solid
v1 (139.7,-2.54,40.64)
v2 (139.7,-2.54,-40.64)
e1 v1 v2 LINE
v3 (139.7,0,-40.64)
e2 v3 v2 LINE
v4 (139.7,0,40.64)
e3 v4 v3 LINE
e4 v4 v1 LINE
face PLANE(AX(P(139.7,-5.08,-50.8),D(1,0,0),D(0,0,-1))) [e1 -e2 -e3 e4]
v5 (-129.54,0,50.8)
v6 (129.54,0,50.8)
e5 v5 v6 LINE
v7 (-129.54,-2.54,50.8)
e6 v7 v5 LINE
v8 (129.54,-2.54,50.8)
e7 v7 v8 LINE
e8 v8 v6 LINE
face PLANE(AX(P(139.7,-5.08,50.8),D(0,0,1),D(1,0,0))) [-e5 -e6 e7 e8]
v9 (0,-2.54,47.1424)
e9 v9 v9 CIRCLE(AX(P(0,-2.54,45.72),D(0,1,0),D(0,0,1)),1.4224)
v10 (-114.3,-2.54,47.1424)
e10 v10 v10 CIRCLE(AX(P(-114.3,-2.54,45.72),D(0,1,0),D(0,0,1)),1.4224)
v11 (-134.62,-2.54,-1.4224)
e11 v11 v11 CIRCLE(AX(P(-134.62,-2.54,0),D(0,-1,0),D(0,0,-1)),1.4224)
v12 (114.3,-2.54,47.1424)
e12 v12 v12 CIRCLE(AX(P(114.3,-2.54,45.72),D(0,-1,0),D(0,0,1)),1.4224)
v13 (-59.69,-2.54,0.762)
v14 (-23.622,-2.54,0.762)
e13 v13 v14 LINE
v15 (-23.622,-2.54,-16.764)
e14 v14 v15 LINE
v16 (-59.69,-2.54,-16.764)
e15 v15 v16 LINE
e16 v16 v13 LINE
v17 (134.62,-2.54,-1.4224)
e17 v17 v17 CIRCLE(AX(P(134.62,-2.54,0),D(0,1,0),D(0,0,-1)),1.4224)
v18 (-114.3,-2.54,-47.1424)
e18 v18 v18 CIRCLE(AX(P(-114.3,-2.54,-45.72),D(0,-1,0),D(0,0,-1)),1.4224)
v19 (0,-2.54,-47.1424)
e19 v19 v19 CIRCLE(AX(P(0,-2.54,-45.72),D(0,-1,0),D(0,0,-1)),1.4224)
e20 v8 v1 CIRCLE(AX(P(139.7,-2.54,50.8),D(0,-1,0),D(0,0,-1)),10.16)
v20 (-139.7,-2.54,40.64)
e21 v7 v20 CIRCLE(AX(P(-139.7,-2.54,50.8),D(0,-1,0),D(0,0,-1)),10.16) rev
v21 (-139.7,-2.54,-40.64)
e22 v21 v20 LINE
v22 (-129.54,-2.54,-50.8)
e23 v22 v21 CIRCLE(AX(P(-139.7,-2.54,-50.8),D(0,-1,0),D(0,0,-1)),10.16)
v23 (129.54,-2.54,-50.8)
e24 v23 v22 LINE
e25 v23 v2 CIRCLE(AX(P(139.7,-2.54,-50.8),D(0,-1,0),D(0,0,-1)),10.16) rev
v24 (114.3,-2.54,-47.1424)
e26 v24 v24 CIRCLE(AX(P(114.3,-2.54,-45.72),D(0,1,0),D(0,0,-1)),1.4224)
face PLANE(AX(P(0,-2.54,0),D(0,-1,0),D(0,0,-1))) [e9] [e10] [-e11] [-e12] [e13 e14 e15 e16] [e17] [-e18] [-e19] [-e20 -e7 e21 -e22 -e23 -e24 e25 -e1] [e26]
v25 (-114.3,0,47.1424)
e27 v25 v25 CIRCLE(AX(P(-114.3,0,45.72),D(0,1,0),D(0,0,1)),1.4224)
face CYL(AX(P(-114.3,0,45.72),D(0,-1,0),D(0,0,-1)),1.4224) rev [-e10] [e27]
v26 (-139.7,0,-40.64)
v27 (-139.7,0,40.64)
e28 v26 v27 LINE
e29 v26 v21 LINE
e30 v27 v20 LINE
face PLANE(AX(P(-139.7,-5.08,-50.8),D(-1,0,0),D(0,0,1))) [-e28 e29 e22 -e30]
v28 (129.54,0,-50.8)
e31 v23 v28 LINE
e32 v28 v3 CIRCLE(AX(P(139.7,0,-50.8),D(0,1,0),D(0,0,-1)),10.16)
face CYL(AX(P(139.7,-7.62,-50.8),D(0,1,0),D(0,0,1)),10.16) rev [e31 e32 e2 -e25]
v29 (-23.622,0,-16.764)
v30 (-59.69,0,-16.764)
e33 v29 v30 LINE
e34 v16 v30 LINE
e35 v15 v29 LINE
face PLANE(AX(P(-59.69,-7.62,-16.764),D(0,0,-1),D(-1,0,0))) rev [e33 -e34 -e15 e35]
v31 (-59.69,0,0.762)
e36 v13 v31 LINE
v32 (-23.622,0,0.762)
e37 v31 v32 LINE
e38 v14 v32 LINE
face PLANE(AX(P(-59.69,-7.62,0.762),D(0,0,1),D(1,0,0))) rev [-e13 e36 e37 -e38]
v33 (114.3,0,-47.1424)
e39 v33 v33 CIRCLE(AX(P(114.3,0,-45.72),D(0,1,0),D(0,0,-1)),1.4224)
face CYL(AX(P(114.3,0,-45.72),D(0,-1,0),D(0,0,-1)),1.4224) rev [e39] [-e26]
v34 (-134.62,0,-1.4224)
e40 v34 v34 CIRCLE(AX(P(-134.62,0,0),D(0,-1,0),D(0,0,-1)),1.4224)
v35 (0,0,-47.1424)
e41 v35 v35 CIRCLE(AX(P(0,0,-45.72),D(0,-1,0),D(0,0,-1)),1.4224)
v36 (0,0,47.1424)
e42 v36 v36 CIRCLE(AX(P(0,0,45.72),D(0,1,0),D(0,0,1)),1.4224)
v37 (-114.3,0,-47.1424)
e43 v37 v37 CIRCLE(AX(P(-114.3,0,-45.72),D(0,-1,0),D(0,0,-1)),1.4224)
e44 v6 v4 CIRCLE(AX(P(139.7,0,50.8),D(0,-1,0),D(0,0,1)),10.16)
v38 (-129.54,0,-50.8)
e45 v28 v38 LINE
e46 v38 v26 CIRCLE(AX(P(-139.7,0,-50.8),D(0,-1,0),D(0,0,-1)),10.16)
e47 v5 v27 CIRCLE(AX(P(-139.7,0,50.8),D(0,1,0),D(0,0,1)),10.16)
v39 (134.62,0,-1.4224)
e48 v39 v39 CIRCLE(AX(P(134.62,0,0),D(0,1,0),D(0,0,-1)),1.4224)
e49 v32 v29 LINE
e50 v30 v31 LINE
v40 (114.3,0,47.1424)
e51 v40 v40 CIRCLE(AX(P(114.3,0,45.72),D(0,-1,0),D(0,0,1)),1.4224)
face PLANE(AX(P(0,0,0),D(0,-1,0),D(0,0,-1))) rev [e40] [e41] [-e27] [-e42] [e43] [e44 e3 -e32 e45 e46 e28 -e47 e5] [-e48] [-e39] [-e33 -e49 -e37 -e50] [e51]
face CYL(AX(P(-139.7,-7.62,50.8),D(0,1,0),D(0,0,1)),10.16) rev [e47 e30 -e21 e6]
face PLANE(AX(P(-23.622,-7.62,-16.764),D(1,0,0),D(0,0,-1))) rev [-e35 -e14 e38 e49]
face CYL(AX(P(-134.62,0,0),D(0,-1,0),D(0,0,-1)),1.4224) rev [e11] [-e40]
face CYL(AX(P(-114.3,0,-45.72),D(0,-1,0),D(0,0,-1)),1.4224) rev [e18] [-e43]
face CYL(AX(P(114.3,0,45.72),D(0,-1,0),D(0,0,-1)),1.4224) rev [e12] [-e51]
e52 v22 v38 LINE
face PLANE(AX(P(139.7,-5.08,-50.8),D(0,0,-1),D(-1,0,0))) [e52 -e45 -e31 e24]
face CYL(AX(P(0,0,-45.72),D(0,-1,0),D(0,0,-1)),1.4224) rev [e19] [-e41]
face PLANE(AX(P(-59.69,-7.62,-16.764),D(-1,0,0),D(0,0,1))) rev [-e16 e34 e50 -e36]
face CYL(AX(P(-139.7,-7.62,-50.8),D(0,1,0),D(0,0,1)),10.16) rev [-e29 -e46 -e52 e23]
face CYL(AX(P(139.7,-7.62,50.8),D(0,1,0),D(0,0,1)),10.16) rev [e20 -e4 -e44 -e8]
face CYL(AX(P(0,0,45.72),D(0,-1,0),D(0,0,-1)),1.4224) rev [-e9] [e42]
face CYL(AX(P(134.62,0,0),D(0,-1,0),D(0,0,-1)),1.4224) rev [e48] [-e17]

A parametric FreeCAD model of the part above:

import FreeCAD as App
import Part
import Sketcher

V = App.Vector
Q = App.Units.Quantity

doc = App.newDocument("Part")
body = doc.addObject("PartDesign::Body", "Body")

# Sketch on XZ plane
sketch1 = body.newObject("Sketcher::SketchObject", "Sketch")
sketch1.AttachmentSupport = (doc.getObject("XZ_Plane"), [""])
sketch1.MapMode = "FlatFace"
sketch1.addGeometry([
    Part.LineSegment(V(-140, -51, 0), V(-140, 51, 0)),
    Part.LineSegment(V(-140, 51, 0), V(140, 51, 0)),
    Part.LineSegment(V(140, 51, 0), V(140, -51, 0)),
    Part.LineSegment(V(140, -51, 0), V(-140, -51, 0)),
], False)
sketch1.addConstraint([
    Sketcher.Constraint("Coincident", 0, 2, 1, 1),
    Sketcher.Constraint("Coincident", 1, 2, 2, 1),
    Sketcher.Constraint("Coincident", 2, 2, 3, 1),
    Sketcher.Constraint("Coincident", 3, 2, 0, 1),
    Sketcher.Constraint("Vertical", 0),
    Sketcher.Constraint("Horizontal", 1),
    Sketcher.Constraint("Vertical", 2),
    Sketcher.Constraint("Horizontal", 3),
    Sketcher.Constraint("Symmetric", 0, 2, 2, 2, -1, 1),
    Sketcher.Constraint("DistanceX", 1, 1, 1, 2, Q("11 in")),
    Sketcher.Constraint("DistanceY", 0, 1, 0, 2, Q("4 in")),
])
pad1 = body.newObject("PartDesign::Pad", "Pad")
pad1.Profile = sketch1
pad1.Length = Q("0.2 in")

# Sketch on XZ plane
sketch2 = body.newObject("Sketcher::SketchObject", "Sketch001")
sketch2.AttachmentSupport = (doc.getObject("XZ_Plane"), [""])
sketch2.MapMode = "FlatFace"
sketch2.addGeometry(Part.Circle(V(-140, 51, 0), V(0, 0, 1), 10), False)
sketch2.addConstraint([
    Sketcher.Constraint("Diameter", 0, Q("0.8 in")),
    Sketcher.Constraint("DistanceY", -1, 1, 0, 3, Q("2 in")),
    Sketcher.Constraint("DistanceX", 0, 3, -1, 1, Q("5.5 in")),
])
pocket1 = body.newObject("PartDesign::Pocket", "Pocket")
pocket1.Profile = sketch2
pocket1.Length = Q("0.3 in")
pocket1.Reversed = True
doc.recompute()

mirrored = body.newObject("PartDesign::Mirrored", "Mirrored")
mirrored.Originals = [pocket1]
mirrored.MirrorPlane = (doc.getObject("YZ_Plane"), [""])
body.Tip = mirrored
doc.recompute()

mirrored2 = body.newObject("PartDesign::Mirrored", "Mirrored001")
mirrored2.Originals = [pocket1]
mirrored2.MirrorPlane = (doc.getObject("XY_Plane"), [""])
body.Tip = mirrored2

# Sketch on XZ plane
sketch3 = body.newObject("Sketcher::SketchObject", "Sketch002")
sketch3.AttachmentSupport = (doc.getObject("XZ_Plane"), [""])
sketch3.MapMode = "FlatFace"
sketch3.addGeometry(Part.Circle(V(140, -51, 0), V(0, 0, 1), 10), False)
sketch3.addConstraint([
    Sketcher.Constraint("Diameter", 0, Q("0.8 in")),
    Sketcher.Constraint("DistanceY", 0, 3, -1, 1, Q("2 in")),
    Sketcher.Constraint("DistanceX", -1, 1, 0, 3, Q("5.5 in")),
])
pocket2 = body.newObject("PartDesign::Pocket", "Pocket001")
pocket2.Profile = sketch3
pocket2.Length = Q("0.3 in")
pocket2.Reversed = True

# Sketch on XZ plane
sketch4 = body.newObject("Sketcher::SketchObject", "Sketch003")
sketch4.AttachmentSupport = (doc.getObject("XZ_Plane"), [""])
sketch4.MapMode = "FlatFace"
sketch4.addGeometry([
    Part.LineSegment(V(-60, -17, 0), V(-60, 1, 0)),
    Part.LineSegment(V(-60, 1, 0), V(-24, 1, 0)),
    Part.LineSegment(V(-24, 1, 0), V(-24, -17, 0)),
    Part.LineSegment(V(-24, -17, 0), V(-60, -17, 0)),
], False)
sketch4.addConstraint([
    Sketcher.Constraint("Coincident", 0, 2, 1, 1),
    Sketcher.Constraint("Coincident", 1, 2, 2, 1),
    Sketcher.Constraint("Coincident", 2, 2, 3, 1),
    Sketcher.Constraint("Coincident", 3, 2, 0, 1),
    Sketcher.Constraint("Vertical", 0),
    Sketcher.Constraint("Horizontal", 1),
    Sketcher.Constraint("Vertical", 2),
    Sketcher.Constraint("Horizontal", 3),
    Sketcher.Constraint("DistanceX", 1, 1, 1, 2, Q("1.42 in")),
    Sketcher.Constraint("DistanceY", 0, 1, 0, 2, Q("0.69 in")),
    Sketcher.Constraint("DistanceX", 0, 2, -1, 1, Q("2.35 in")),
    Sketcher.Constraint("DistanceY", -1, 1, 0, 2, Q("0.03 in")),
])
pocket3 = body.newObject("PartDesign::Pocket", "Pocket002")
pocket3.Profile = sketch4
pocket3.Length = Q("0.3 in")
pocket3.Reversed = True

# Sketch on XZ plane
sketch5 = body.newObject("Sketcher::SketchObject", "Sketch004")
sketch5.AttachmentSupport = (doc.getObject("XZ_Plane"), [""])
sketch5.MapMode = "FlatFace"
sketch5.AttachmentOffset = App.Placement(V(0, 0, 0.2 * 25.4), App.Rotation())
sketch5.addGeometry([
    Part.LineSegment(V(-165, 61, 0), V(-165, -61, 0)),
    Part.LineSegment(V(-165, -61, 0), V(165, -61, 0)),
    Part.LineSegment(V(165, -61, 0), V(165, 61, 0)),
    Part.LineSegment(V(165, 61, 0), V(-165, 61, 0)),
], False)
sketch5.addConstraint([
    Sketcher.Constraint("Coincident", 0, 2, 1, 1),
    Sketcher.Constraint("Coincident", 1, 2, 2, 1),
    Sketcher.Constraint("Coincident", 2, 2, 3, 1),
    Sketcher.Constraint("Coincident", 3, 2, 0, 1),
    Sketcher.Constraint("Vertical", 0),
    Sketcher.Constraint("Horizontal", 1),
    Sketcher.Constraint("Vertical", 2),
    Sketcher.Constraint("Horizontal", 3),
    Sketcher.Constraint("Symmetric", 0, 2, 2, 2, -1, 1),
    Sketcher.Constraint("DistanceX", 1, 1, 1, 2, Q("329.627948 mm")),
    Sketcher.Constraint("DistanceY", 0, 2, 0, 1, Q("121.564545 mm")),
])
pocket4 = body.newObject("PartDesign::Pocket", "Pocket003")
pocket4.Profile = sketch5
pocket4.Length = Q("0.1 in")

# Sketch on XZ plane
sketch6 = body.newObject("Sketcher::SketchObject", "Sketch005")
sketch6.AttachmentSupport = (doc.getObject("XZ_Plane"), [""])
sketch6.MapMode = "FlatFace"
sketch6.AttachmentOffset = App.Placement(V(0, 0, 0.1 * 25.4), App.Rotation())
sketch6.addGeometry(Part.Circle(V(-114.3, -45.7, 0), V(0, 0, 1), 1.4), False)
sketch6.addConstraint([
    Sketcher.Constraint("Diameter", 0, Q("0.112 in")),
    Sketcher.Constraint("DistanceX", 0, 3, -1, 1, Q("4.5 in")),
    Sketcher.Constraint("DistanceY", 0, 3, -1, 1, Q("1.8 in")),
])
pocket5 = body.newObject("PartDesign::Pocket", "Pocket004")
pocket5.Profile = sketch6
pocket5.Length = Q("0.1 in")
doc.recompute()

mirrored3 = body.newObject("PartDesign::Mirrored", "Mirrored002")
mirrored3.Originals = [pocket5]
mirrored3.MirrorPlane = (doc.getObject("XY_Plane"), [""])
body.Tip = mirrored3
doc.recompute()

mirrored4 = body.newObject("PartDesign::Mirrored", "Mirrored003")
mirrored4.Originals = [pocket5]
mirrored4.MirrorPlane = (doc.getObject("YZ_Plane"), [""])
body.Tip = mirrored4

# Sketch on XZ plane
sketch7 = body.newObject("Sketcher::SketchObject", "Sketch006")
sketch7.AttachmentSupport = (doc.getObject("XZ_Plane"), [""])
sketch7.MapMode = "FlatFace"
sketch7.AttachmentOffset = App.Placement(V(0, 0, 0.1 * 25.4), App.Rotation())
sketch7.addGeometry(Part.Circle(V(114.3, 45.7, 0), V(0, 0, 1), 1.4), False)
sketch7.addConstraint([
    Sketcher.Constraint("Diameter", 0, Q("0.112 in")),
    Sketcher.Constraint("DistanceX", -1, 1, 0, 3, Q("4.5 in")),
    Sketcher.Constraint("DistanceY", -1, 1, 0, 3, Q("1.8 in")),
])
pocket6 = body.newObject("PartDesign::Pocket", "Pocket005")
pocket6.Profile = sketch7
pocket6.Length = Q("0.1 in")

# Sketch on XZ plane
sketch8 = body.newObject("Sketcher::SketchObject", "Sketch007")
sketch8.AttachmentSupport = (doc.getObject("XZ_Plane"), [""])
sketch8.MapMode = "FlatFace"
sketch8.AttachmentOffset = App.Placement(V(0, 0, 0.1 * 25.4), App.Rotation())
sketch8.addGeometry(Part.Circle(V(-134.6, 0, 0), V(0, 0, 1), 1.4), False)
sketch8.addConstraint([
    Sketcher.Constraint("PointOnObject", 0, 3, -1),
    Sketcher.Constraint("Diameter", 0, Q("0.112 in")),
    Sketcher.Constraint("DistanceX", 0, 3, -1, 1, Q("5.3 in")),
])
pocket7 = body.newObject("PartDesign::Pocket", "Pocket006")
pocket7.Profile = sketch8
pocket7.Length = Q("0.1 in")
doc.recompute()

mirrored5 = body.newObject("PartDesign::Mirrored", "Mirrored004")
mirrored5.Originals = [pocket7]
mirrored5.MirrorPlane = (doc.getObject("YZ_Plane"), [""])
body.Tip = mirrored5

# Sketch on XZ plane
sketch9 = body.newObject("Sketcher::SketchObject", "Sketch008")
sketch9.AttachmentSupport = (doc.getObject("XZ_Plane"), [""])
sketch9.MapMode = "FlatFace"
sketch9.AttachmentOffset = App.Placement(V(0, 0, 0.1 * 25.4), App.Rotation())
sketch9.addGeometry(Part.Circle(V(0, -45.7, 0), V(0, 0, 1), 1.4), False)
sketch9.addConstraint([
    Sketcher.Constraint("PointOnObject", 0, 3, -2),
    Sketcher.Constraint("Diameter", 0, Q("0.112 in")),
    Sketcher.Constraint("DistanceY", 0, 3, -1, 1, Q("1.8 in")),
])
pocket8 = body.newObject("PartDesign::Pocket", "Pocket007")
pocket8.Profile = sketch9
pocket8.Length = Q("0.1 in")
doc.recompute()

mirrored6 = body.newObject("PartDesign::Mirrored", "Mirrored005")
mirrored6.Originals = [pocket8]
mirrored6.MirrorPlane = (doc.getObject("XY_Plane"), [""])
body.Tip = mirrored6

doc.recompute()
